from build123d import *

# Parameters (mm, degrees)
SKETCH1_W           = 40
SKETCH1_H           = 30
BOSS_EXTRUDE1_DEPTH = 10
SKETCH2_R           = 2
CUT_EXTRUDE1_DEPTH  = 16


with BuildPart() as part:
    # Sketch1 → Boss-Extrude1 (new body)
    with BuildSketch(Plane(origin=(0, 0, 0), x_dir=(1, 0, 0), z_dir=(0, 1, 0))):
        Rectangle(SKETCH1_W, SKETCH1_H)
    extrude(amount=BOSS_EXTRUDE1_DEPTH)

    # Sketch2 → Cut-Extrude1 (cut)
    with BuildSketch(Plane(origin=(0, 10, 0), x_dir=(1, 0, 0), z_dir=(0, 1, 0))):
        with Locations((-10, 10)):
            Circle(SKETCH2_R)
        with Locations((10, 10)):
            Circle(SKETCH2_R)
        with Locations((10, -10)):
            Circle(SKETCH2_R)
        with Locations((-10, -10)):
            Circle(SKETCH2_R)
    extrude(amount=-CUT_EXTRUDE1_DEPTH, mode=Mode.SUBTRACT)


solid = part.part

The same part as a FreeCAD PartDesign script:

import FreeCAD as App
import Part
import Sketcher
from FreeCAD import Vector
Q = App.Units.Quantity

doc = App.newDocument("Part")
body = doc.addObject("PartDesign::Body", "Body")

# Sketch on XZ plane
sketch1 = body.newObject("Sketcher::SketchObject", "Sketch")
sketch1.AttachmentSupport = (doc.getObject("XZ_Plane"), [""])
sketch1.MapMode = "FlatFace"
sketch1.addGeometry([
    Part.LineSegment(Vector(-20, -15, 0), Vector(-20, 15, 0)),
    Part.LineSegment(Vector(-20, 15, 0), Vector(20, 15, 0)),
    Part.LineSegment(Vector(20, 15, 0), Vector(20, -15, 0)),
    Part.LineSegment(Vector(20, -15, 0), Vector(-20, -15, 0)),
], False)
sketch1.addConstraint([
    Sketcher.Constraint("Coincident", 0, 2, 1, 1),
    Sketcher.Constraint("Coincident", 1, 2, 2, 1),
    Sketcher.Constraint("Coincident", 2, 2, 3, 1),
    Sketcher.Constraint("Coincident", 3, 2, 0, 1),
    Sketcher.Constraint("Vertical", 0),
    Sketcher.Constraint("Horizontal", 1),
    Sketcher.Constraint("Vertical", 2),
    Sketcher.Constraint("Horizontal", 3),
    Sketcher.Constraint("Symmetric", 0, 2, 2, 2, -1, 1),
    Sketcher.Constraint("DistanceX", 1, 1, 1, 2, Q("40 mm")),
    Sketcher.Constraint("DistanceY", 0, 1, 0, 2, Q("30 mm")),
])
pad1 = body.newObject("PartDesign::Pad", "Pad")
pad1.Profile = sketch1
pad1.Length = 10
pad1.Reversed = True

# Sketch on XZ plane
sketch2 = body.newObject("Sketcher::SketchObject", "Sketch001")
sketch2.AttachmentSupport = (doc.getObject("XZ_Plane"), [""])
sketch2.MapMode = "FlatFace"
sketch2.AttachmentOffset = App.Placement(Vector(0, 0, -10), App.Rotation())
sketch2.addGeometry([
    Part.Circle(Vector(-10, -10, 0), Vector(0, 0, 1), 2),
    Part.Circle(Vector(10, -10, 0), Vector(0, 0, 1), 2),
    Part.Circle(Vector(10, 10, 0), Vector(0, 0, 1), 2),
    Part.Circle(Vector(-10, 10, 0), Vector(0, 0, 1), 2),
], False)
sketch2.addConstraint([
    Sketcher.Constraint("Equal", 0, 1),
    Sketcher.Constraint("Equal", 1, 2),
    Sketcher.Constraint("Equal", 2, 3),
    Sketcher.Constraint("Symmetric", 0, 3, 2, 3, -1, 1),
    Sketcher.Constraint("Symmetric", 1, 3, 3, 3, -1, 1),
    Sketcher.Constraint("Symmetric", 0, 3, 1, 3, -2),
    Sketcher.Constraint("Diameter", 0, Q("4 mm")),
    Sketcher.Constraint("DistanceX", 0, 3, -1, 1, Q("10 mm")),
    Sketcher.Constraint("DistanceY", 0, 3, -1, 1, Q("10 mm")),
])
pocket1 = body.newObject("PartDesign::Pocket", "Pocket")
pocket1.Profile = sketch2
pocket1.Length = 16
pocket1.Reversed = True

doc.recompute()
